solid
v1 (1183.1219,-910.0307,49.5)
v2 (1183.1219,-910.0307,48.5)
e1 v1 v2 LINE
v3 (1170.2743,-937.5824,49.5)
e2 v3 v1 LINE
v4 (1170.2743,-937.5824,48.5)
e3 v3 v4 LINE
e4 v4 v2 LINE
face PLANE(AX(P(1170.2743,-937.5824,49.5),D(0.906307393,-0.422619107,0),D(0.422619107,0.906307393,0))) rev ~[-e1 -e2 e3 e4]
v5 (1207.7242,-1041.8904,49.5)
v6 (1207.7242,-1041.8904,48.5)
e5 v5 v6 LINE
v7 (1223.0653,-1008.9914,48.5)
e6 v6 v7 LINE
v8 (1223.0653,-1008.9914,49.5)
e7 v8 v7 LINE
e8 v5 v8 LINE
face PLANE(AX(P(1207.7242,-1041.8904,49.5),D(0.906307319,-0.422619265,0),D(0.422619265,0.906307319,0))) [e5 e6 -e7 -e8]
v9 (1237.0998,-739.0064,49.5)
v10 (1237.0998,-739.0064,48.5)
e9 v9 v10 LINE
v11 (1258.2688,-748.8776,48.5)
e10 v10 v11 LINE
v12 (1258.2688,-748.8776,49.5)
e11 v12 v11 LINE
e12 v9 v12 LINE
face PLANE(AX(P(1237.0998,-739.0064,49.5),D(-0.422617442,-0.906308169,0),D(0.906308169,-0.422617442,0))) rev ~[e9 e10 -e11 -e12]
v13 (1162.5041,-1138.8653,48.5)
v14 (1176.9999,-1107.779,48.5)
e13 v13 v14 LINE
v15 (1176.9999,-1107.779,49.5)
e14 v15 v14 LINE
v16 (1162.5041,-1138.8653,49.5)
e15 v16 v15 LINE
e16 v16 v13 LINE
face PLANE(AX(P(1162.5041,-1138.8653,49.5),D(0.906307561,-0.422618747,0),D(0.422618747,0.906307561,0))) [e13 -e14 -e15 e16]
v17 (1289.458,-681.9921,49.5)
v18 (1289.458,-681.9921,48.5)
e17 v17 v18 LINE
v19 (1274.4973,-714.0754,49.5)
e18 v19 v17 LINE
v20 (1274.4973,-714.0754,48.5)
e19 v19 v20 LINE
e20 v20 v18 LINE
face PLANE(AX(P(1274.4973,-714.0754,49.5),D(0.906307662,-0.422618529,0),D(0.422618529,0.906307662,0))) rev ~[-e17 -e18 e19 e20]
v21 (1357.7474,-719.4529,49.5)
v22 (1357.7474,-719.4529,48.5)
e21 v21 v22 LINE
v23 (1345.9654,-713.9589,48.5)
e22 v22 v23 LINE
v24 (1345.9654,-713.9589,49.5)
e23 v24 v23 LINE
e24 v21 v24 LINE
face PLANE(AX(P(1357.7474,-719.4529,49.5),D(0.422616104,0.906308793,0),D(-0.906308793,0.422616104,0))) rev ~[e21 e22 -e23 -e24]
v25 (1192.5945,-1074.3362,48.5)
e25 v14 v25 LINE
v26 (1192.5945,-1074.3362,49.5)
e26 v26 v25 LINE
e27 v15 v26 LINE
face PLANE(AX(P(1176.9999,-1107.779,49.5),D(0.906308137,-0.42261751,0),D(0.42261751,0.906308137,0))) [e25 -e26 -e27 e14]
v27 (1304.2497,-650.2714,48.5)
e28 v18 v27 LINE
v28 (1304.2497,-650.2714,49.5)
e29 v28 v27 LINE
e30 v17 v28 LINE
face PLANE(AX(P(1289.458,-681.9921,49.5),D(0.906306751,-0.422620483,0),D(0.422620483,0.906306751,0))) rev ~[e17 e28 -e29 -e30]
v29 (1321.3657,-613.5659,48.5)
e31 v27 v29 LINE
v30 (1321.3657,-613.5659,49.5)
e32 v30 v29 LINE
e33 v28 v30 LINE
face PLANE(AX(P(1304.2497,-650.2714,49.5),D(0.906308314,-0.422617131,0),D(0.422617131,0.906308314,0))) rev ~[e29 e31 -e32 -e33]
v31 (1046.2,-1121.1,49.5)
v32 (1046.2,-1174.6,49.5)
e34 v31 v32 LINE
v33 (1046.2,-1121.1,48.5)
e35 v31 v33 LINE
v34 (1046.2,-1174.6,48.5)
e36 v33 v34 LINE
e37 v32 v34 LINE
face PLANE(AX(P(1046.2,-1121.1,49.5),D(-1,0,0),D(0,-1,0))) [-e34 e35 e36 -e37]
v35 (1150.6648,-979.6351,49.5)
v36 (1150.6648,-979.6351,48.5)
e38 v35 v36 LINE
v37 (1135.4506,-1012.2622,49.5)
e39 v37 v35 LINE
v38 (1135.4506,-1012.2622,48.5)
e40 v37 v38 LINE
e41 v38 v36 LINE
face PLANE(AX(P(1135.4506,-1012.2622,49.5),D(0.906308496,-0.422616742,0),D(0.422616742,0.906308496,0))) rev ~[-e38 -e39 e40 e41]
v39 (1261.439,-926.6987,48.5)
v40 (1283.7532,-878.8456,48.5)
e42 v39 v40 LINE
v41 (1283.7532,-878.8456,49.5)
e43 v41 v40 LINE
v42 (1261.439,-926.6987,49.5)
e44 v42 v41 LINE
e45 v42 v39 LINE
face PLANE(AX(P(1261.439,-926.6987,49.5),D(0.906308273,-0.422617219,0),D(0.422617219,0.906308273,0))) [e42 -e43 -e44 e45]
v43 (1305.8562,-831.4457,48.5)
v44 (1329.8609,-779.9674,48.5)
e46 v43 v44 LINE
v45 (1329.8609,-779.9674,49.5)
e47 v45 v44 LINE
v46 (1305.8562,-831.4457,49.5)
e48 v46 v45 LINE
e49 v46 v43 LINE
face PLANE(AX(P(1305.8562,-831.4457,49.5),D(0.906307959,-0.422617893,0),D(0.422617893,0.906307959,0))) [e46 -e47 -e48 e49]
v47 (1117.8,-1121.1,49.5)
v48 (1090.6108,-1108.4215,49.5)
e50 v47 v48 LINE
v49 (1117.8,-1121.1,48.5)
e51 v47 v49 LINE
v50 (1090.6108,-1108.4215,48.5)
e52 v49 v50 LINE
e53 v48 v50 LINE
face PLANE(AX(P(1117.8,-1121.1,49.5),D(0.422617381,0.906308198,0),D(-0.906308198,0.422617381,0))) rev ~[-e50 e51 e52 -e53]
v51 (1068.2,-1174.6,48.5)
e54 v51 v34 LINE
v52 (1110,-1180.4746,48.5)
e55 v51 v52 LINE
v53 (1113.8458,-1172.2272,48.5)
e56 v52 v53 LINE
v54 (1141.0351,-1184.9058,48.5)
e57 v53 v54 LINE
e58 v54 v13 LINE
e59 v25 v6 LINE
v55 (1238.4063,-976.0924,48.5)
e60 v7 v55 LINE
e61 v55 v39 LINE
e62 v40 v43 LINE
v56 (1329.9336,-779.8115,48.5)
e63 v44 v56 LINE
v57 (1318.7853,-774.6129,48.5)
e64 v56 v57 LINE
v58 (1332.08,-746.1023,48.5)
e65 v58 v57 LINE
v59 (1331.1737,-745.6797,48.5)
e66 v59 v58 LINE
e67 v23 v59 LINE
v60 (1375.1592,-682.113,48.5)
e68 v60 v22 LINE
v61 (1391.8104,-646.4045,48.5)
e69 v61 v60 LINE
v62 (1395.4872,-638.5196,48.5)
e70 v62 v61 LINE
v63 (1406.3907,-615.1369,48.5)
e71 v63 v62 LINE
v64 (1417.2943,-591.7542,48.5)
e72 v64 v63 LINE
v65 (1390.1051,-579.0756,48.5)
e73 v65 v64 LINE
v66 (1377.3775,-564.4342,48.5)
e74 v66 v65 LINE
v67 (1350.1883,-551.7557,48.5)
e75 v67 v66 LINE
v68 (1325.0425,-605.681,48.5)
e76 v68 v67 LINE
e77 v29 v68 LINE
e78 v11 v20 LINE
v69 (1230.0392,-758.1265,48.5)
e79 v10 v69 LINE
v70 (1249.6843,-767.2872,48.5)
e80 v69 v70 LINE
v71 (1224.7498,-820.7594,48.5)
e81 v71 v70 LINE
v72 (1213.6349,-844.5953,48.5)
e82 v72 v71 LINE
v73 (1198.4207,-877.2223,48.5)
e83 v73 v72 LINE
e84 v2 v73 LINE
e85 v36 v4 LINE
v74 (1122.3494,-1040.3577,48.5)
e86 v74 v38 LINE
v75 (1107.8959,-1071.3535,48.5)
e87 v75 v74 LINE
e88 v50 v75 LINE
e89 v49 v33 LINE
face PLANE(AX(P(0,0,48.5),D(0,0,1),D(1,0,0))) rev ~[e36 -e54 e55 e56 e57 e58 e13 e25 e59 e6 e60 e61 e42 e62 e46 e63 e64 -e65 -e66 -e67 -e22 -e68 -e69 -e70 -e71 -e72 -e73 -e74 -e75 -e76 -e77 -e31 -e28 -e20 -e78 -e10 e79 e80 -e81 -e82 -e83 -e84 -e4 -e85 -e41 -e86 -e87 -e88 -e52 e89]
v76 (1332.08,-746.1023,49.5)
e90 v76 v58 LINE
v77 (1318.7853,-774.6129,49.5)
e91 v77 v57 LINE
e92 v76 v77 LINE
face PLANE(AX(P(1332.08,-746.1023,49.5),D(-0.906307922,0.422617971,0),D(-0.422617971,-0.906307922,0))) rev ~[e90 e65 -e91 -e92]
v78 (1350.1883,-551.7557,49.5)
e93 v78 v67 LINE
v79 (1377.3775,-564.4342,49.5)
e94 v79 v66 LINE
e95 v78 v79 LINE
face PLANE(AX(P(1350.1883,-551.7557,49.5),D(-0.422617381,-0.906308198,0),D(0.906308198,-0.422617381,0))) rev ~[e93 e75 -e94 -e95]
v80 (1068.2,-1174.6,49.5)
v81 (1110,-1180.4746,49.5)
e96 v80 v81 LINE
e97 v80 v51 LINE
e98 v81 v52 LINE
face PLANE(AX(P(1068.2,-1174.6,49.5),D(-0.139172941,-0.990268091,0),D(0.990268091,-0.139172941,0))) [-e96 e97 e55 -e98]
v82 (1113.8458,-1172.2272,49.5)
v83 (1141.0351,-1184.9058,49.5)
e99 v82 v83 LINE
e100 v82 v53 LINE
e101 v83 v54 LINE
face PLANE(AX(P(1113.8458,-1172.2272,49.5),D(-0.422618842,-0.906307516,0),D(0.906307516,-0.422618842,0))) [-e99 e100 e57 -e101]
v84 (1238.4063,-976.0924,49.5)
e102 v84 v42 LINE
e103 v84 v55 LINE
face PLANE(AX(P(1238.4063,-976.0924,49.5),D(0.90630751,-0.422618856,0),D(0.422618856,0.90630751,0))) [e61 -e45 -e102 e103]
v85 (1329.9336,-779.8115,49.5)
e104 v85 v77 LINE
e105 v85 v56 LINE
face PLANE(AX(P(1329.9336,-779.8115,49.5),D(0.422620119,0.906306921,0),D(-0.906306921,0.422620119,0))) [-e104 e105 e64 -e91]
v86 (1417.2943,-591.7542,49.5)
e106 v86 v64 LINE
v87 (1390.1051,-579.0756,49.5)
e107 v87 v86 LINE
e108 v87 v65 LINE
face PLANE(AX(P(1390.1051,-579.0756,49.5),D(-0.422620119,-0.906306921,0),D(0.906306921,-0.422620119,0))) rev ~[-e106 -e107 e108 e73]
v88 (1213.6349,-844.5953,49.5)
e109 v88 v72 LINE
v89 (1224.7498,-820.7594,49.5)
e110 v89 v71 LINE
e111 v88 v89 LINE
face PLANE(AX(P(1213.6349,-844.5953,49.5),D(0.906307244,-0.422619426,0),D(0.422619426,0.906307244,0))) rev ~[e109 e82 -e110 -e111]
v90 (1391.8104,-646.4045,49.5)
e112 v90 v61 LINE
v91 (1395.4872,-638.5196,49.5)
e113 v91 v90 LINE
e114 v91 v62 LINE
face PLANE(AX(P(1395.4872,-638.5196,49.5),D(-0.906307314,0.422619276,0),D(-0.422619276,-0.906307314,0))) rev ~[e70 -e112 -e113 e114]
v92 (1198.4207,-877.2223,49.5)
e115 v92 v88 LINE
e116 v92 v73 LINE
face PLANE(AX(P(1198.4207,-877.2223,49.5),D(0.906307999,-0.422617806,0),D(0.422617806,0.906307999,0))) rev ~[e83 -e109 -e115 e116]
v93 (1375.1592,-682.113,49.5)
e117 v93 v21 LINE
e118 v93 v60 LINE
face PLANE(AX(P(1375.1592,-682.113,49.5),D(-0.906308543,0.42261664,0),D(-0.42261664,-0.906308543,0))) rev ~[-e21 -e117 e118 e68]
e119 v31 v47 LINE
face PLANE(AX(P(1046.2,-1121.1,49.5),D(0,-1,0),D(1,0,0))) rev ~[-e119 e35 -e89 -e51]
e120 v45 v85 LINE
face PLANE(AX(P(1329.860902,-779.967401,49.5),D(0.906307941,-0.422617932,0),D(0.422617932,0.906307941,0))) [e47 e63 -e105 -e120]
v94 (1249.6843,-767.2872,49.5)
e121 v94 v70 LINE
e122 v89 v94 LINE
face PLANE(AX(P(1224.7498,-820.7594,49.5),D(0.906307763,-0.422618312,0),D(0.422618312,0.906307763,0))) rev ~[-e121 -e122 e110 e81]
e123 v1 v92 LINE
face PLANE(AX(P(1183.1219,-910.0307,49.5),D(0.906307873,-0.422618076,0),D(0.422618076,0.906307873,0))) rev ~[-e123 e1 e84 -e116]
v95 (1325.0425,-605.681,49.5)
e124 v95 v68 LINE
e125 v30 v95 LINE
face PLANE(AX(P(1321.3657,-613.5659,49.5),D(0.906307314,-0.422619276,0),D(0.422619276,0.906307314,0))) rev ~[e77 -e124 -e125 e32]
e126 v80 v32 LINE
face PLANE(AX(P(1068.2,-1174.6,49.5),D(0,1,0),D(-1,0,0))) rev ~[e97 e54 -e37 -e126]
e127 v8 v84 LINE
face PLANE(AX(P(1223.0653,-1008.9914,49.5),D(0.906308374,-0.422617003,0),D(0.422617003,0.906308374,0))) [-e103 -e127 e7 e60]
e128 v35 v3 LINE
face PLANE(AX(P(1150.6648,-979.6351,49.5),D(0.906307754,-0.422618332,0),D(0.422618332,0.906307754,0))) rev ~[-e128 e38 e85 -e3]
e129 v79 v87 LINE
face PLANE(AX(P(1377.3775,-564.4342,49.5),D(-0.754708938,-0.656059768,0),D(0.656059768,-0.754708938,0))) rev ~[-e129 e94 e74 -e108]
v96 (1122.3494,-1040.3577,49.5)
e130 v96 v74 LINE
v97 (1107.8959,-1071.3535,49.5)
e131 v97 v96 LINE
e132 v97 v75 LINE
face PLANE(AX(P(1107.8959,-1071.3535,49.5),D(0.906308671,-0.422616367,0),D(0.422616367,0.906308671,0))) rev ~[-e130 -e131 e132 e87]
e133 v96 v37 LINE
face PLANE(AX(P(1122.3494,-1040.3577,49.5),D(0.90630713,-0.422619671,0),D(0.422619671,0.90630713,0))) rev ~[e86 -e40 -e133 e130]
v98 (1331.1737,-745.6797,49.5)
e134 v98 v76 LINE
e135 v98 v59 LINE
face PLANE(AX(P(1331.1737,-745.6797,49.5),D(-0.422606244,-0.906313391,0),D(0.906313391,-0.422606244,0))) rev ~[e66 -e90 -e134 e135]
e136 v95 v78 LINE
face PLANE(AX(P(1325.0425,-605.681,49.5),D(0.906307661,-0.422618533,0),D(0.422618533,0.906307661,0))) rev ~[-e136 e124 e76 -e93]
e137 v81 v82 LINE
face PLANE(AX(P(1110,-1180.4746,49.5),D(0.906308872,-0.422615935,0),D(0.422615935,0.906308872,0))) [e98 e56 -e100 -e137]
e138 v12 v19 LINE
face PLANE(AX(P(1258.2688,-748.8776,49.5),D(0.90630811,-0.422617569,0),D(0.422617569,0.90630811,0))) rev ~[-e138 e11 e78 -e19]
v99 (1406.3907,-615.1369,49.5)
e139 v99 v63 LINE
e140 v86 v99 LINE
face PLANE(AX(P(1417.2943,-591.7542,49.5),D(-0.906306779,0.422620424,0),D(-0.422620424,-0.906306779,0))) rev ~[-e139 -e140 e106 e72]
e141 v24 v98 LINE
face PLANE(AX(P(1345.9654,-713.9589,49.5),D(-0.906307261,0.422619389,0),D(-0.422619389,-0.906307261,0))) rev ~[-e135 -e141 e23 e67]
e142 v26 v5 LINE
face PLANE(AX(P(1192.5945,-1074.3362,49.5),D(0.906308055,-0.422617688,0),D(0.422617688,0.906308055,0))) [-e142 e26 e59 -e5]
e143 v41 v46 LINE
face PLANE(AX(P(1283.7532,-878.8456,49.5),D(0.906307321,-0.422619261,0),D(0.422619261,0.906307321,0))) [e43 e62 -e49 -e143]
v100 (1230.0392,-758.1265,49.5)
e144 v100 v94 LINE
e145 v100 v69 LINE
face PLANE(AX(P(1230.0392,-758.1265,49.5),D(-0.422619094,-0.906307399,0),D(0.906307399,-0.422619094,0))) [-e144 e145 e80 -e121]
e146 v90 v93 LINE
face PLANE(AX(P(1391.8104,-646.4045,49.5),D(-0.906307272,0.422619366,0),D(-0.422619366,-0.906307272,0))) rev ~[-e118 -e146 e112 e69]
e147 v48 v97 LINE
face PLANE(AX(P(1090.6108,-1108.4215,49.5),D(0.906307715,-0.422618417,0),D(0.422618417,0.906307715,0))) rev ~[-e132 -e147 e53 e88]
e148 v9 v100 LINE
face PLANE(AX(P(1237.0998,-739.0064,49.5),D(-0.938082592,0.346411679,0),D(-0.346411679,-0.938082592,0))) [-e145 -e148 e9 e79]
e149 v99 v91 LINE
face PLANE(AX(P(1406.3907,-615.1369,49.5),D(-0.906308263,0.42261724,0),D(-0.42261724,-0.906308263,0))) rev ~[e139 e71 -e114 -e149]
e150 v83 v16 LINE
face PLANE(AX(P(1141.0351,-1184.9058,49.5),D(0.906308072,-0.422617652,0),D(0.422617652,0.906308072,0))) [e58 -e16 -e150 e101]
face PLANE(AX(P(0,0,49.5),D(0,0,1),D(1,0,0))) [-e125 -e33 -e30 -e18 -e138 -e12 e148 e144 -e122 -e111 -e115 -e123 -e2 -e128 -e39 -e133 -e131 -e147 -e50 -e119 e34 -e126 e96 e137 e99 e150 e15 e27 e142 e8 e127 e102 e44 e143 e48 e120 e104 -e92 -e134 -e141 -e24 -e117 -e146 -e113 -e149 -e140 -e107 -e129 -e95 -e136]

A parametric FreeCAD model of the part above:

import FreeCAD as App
import Part
import Sketcher

V = App.Vector
Q = App.Units.Quantity

doc = App.newDocument("Part")
body = doc.addObject("PartDesign::Body", "Body")

sketch1 = doc.addObject("Sketcher::SketchObject", "Sketch")
body.addObject(sketch1)
sketch1.AttachmentSupport = (doc.XY_Plane, [""])
sketch1.MapMode = "FlatFace"
sketch1.AttachmentOffset = App.Placement(V(0, 0, 49.5), App.Rotation())
sketch1.addGeometry(Part.LineSegment(V(1046.2, -1121.1, 0), V(1046.2, -1174.6, 0)), False)
sketch1.addGeometry(Part.LineSegment(V(1046.2, -1174.6, 0), V(1068.2, -1174.6, 0)), False)
sketch1.addGeometry(Part.LineSegment(V(1068.2, -1174.6, 0), V(1110, -1180.4746, 0)), False)
sketch1.addGeometry(Part.LineSegment(V(1110, -1180.4746, 0), V(1113.8458, -1172.2272, 0)), False)
sketch1.addGeometry(Part.LineSegment(V(1113.8458, -1172.2272, 0), V(1141.0351, -1184.9058, 0)), False)
sketch1.addGeometry(Part.LineSegment(V(1141.0351, -1184.9058, 0), V(1162.5041, -1138.8653, 0)), False)
sketch1.addGeometry(Part.LineSegment(V(1162.5041, -1138.8653, 0), V(1176.9999, -1107.779, 0)), False)
sketch1.addGeometry(Part.LineSegment(V(1176.9999, -1107.779, 0), V(1192.5945, -1074.3362, 0)), False)
sketch1.addGeometry(Part.LineSegment(V(1192.5945, -1074.3362, 0), V(1207.7242, -1041.8904, 0)), False)
sketch1.addGeometry(Part.LineSegment(V(1207.7242, -1041.8904, 0), V(1223.0653, -1008.9914, 0)), False)
sketch1.addGeometry(Part.LineSegment(V(1223.0653, -1008.9914, 0), V(1238.4063, -976.0924, 0)), False)
sketch1.addGeometry(Part.LineSegment(V(1238.4063, -976.0924, 0), V(1261.439, -926.6987, 0)), False)
sketch1.addGeometry(Part.LineSegment(V(1261.439, -926.6987, 0), V(1283.7532, -878.8456, 0)), False)
sketch1.addGeometry(Part.LineSegment(V(1283.7532, -878.8456, 0), V(1305.8562, -831.4457, 0)), False)
sketch1.addGeometry(Part.LineSegment(V(1305.8562, -831.4457, 0), V(1329.8609, -779.9674, 0)), False)
sketch1.addGeometry(Part.LineSegment(V(1329.860902, -779.967401, 0), V(1329.9336, -779.8115, 0)), False)
sketch1.addGeometry(Part.LineSegment(V(1329.9336, -779.8115, 0), V(1318.785287, -774.612928, 0)), False)
sketch1.addGeometry(Part.LineSegment(V(1318.7853, -774.6129, 0), V(1332.08, -746.1023, 0)), False)
sketch1.addGeometry(Part.LineSegment(V(1332.08, -746.1023, 0), V(1331.1737, -745.6797, 0)), False)
sketch1.addGeometry(Part.LineSegment(V(1331.1737, -745.6797, 0), V(1345.9654, -713.9589, 0)), False)
sketch1.addGeometry(Part.LineSegment(V(1345.965401, -713.958898, 0), V(1357.7474, -719.4529, 0)), False)
sketch1.addGeometry(Part.LineSegment(V(1357.7474, -719.4529, 0), V(1375.1592, -682.113, 0)), False)
sketch1.addGeometry(Part.LineSegment(V(1375.1592, -682.113, 0), V(1391.8104, -646.4045, 0)), False)
sketch1.addGeometry(Part.LineSegment(V(1391.8104, -646.4045, 0), V(1395.4872, -638.5196, 0)), False)
sketch1.addGeometry(Part.LineSegment(V(1395.4872, -638.5196, 0), V(1406.3907, -615.1369, 0)), False)
sketch1.addGeometry(Part.LineSegment(V(1406.3907, -615.1369, 0), V(1417.2943, -591.7542, 0)), False)
sketch1.addGeometry(Part.LineSegment(V(1417.2943, -591.7542, 0), V(1390.1051, -579.0756, 0)), False)
sketch1.addGeometry(Part.LineSegment(V(1390.1051, -579.0756, 0), V(1377.3775, -564.4342, 0)), False)
sketch1.addGeometry(Part.LineSegment(V(1377.3775, -564.4342, 0), V(1350.1883, -551.7557, 0)), False)
sketch1.addGeometry(Part.LineSegment(V(1350.1883, -551.7557, 0), V(1325.0425, -605.681, 0)), False)
sketch1.addGeometry(Part.LineSegment(V(1325.0425, -605.681, 0), V(1321.3657, -613.5659, 0)), False)
sketch1.addGeometry(Part.LineSegment(V(1321.3657, -613.5659, 0), V(1304.2497, -650.2714, 0)), False)
sketch1.addGeometry(Part.LineSegment(V(1304.2497, -650.2714, 0), V(1289.458, -681.9921, 0)), False)
sketch1.addGeometry(Part.LineSegment(V(1289.458, -681.9921, 0), V(1274.4973, -714.0754, 0)), False)
sketch1.addGeometry(Part.LineSegment(V(1274.4973, -714.0754, 0), V(1258.2688, -748.8776, 0)), False)
sketch1.addGeometry(Part.LineSegment(V(1258.268783, -748.877636, 0), V(1237.0998, -739.0064, 0)), False)
sketch1.addGeometry(Part.LineSegment(V(1237.0998, -739.0064, 0), V(1239.7468, -733.8456, 0)), False)
sketch1.addGeometry(Part.LineSegment(V(1239.7468, -733.8456, 0), V(1226.4, -727, 0)), False)
sketch1.addGeometry(Part.LineSegment(V(1226.4, -727, 0), V(1213.4, -757.7, 0)), False)
sketch1.addGeometry(Part.LineSegment(V(1213.4, -757.7, 0), V(1226.7468, -764.5456, 0)), False)
sketch1.addGeometry(Part.LineSegment(V(1226.7468, -764.5456, 0), V(1230.0392, -758.1265, 0)), False)
sketch1.addGeometry(Part.LineSegment(V(1230.0392, -758.1265, 0), V(1249.684307, -767.287186, 0)), False)
sketch1.addGeometry(Part.LineSegment(V(1249.6843, -767.2872, 0), V(1224.7498, -820.7594, 0)), False)
sketch1.addGeometry(Part.LineSegment(V(1224.7498, -820.7594, 0), V(1213.6349, -844.5953, 0)), False)
sketch1.addGeometry(Part.LineSegment(V(1213.6349, -844.5953, 0), V(1198.4207, -877.2223, 0)), False)
sketch1.addGeometry(Part.LineSegment(V(1198.4207, -877.2223, 0), V(1183.1219, -910.0307, 0)), False)
sketch1.addGeometry(Part.LineSegment(V(1183.1219, -910.0307, 0), V(1170.2743, -937.5824, 0)), False)
sketch1.addGeometry(Part.LineSegment(V(1170.2743, -937.5824, 0), V(1150.6648, -979.6351, 0)), False)
sketch1.addGeometry(Part.LineSegment(V(1150.6648, -979.6351, 0), V(1135.4506, -1012.2622, 0)), False)
sketch1.addGeometry(Part.LineSegment(V(1135.4506, -1012.2622, 0), V(1122.3494, -1040.3577, 0)), False)
sketch1.addGeometry(Part.LineSegment(V(1122.3494, -1040.3577, 0), V(1107.8959, -1071.3535, 0)), False)
sketch1.addGeometry(Part.LineSegment(V(1107.8959, -1071.3535, 0), V(1090.6108, -1108.4215, 0)), False)
sketch1.addGeometry(Part.LineSegment(V(1090.6108, -1108.4215, 0), V(1117.8, -1121.1, 0)), False)
sketch1.addGeometry(Part.LineSegment(V(1117.8, -1121.1, 0), V(1046.2, -1121.1, 0)), False)
sketch1.addConstraint(Sketcher.Constraint("Coincident", 0, 2, 1, 1))
sketch1.addConstraint(Sketcher.Constraint("Coincident", 1, 2, 2, 1))
sketch1.addConstraint(Sketcher.Constraint("Coincident", 2, 2, 3, 1))
sketch1.addConstraint(Sketcher.Constraint("Coincident", 3, 2, 4, 1))
sketch1.addConstraint(Sketcher.Constraint("Coincident", 4, 2, 5, 1))
sketch1.addConstraint(Sketcher.Constraint("Coincident", 5, 2, 6, 1))
sketch1.addConstraint(Sketcher.Constraint("Coincident", 6, 2, 7, 1))
sketch1.addConstraint(Sketcher.Constraint("Coincident", 7, 2, 8, 1))
sketch1.addConstraint(Sketcher.Constraint("Coincident", 8, 2, 9, 1))
sketch1.addConstraint(Sketcher.Constraint("Coincident", 9, 2, 10, 1))
sketch1.addConstraint(Sketcher.Constraint("Coincident", 10, 2, 11, 1))
sketch1.addConstraint(Sketcher.Constraint("Coincident", 11, 2, 12, 1))
sketch1.addConstraint(Sketcher.Constraint("Coincident", 12, 2, 13, 1))
sketch1.addConstraint(Sketcher.Constraint("Coincident", 13, 2, 14, 1))
sketch1.addConstraint(Sketcher.Constraint("Coincident", 14, 2, 15, 1))
sketch1.addConstraint(Sketcher.Constraint("Coincident", 15, 2, 16, 1))
sketch1.addConstraint(Sketcher.Constraint("Coincident", 16, 2, 17, 1))
sketch1.addConstraint(Sketcher.Constraint("Coincident", 17, 2, 18, 1))
sketch1.addConstraint(Sketcher.Constraint("Coincident", 18, 2, 19, 1))
sketch1.addConstraint(Sketcher.Constraint("Coincident", 19, 2, 20, 1))
sketch1.addConstraint(Sketcher.Constraint("Coincident", 20, 2, 21, 1))
sketch1.addConstraint(Sketcher.Constraint("Coincident", 21, 2, 22, 1))
sketch1.addConstraint(Sketcher.Constraint("Coincident", 22, 2, 23, 1))
sketch1.addConstraint(Sketcher.Constraint("Coincident", 23, 2, 24, 1))
sketch1.addConstraint(Sketcher.Constraint("Coincident", 24, 2, 25, 1))
sketch1.addConstraint(Sketcher.Constraint("Coincident", 25, 2, 26, 1))
sketch1.addConstraint(Sketcher.Constraint("Coincident", 26, 2, 27, 1))
sketch1.addConstraint(Sketcher.Constraint("Coincident", 27, 2, 28, 1))
sketch1.addConstraint(Sketcher.Constraint("Coincident", 28, 2, 29, 1))
sketch1.addConstraint(Sketcher.Constraint("Coincident", 29, 2, 30, 1))
sketch1.addConstraint(Sketcher.Constraint("Coincident", 30, 2, 31, 1))
sketch1.addConstraint(Sketcher.Constraint("Coincident", 31, 2, 32, 1))
sketch1.addConstraint(Sketcher.Constraint("Coincident", 32, 2, 33, 1))
sketch1.addConstraint(Sketcher.Constraint("Coincident", 33, 2, 34, 1))
sketch1.addConstraint(Sketcher.Constraint("Coincident", 34, 2, 35, 1))
sketch1.addConstraint(Sketcher.Constraint("Coincident", 35, 2, 36, 1))
sketch1.addConstraint(Sketcher.Constraint("Coincident", 36, 2, 37, 1))
sketch1.addConstraint(Sketcher.Constraint("Coincident", 37, 2, 38, 1))
sketch1.addConstraint(Sketcher.Constraint("Coincident", 38, 2, 39, 1))
sketch1.addConstraint(Sketcher.Constraint("Coincident", 39, 2, 40, 1))
sketch1.addConstraint(Sketcher.Constraint("Coincident", 40, 2, 41, 1))
sketch1.addConstraint(Sketcher.Constraint("Coincident", 41, 2, 42, 1))
sketch1.addConstraint(Sketcher.Constraint("Coincident", 42, 2, 43, 1))
sketch1.addConstraint(Sketcher.Constraint("Coincident", 43, 2, 44, 1))
sketch1.addConstraint(Sketcher.Constraint("Coincident", 44, 2, 45, 1))
sketch1.addConstraint(Sketcher.Constraint("Coincident", 45, 2, 46, 1))
sketch1.addConstraint(Sketcher.Constraint("Coincident", 46, 2, 47, 1))
sketch1.addConstraint(Sketcher.Constraint("Coincident", 47, 2, 48, 1))
sketch1.addConstraint(Sketcher.Constraint("Coincident", 48, 2, 49, 1))
sketch1.addConstraint(Sketcher.Constraint("Coincident", 49, 2, 50, 1))
sketch1.addConstraint(Sketcher.Constraint("Coincident", 50, 2, 51, 1))
sketch1.addConstraint(Sketcher.Constraint("Coincident", 51, 2, 52, 1))
sketch1.addConstraint(Sketcher.Constraint("Coincident", 52, 2, 53, 1))
sketch1.addConstraint(Sketcher.Constraint("Coincident", 53, 2, 0, 1))
sketch1.addConstraint(Sketcher.Constraint("Vertical", 0))
sketch1.addConstraint(Sketcher.Constraint("Horizontal", 1))
sketch1.addConstraint(Sketcher.Constraint("Horizontal", 53))
sketch1.addConstraint(Sketcher.Constraint("Perpendicular", 3, 4))
sketch1.addConstraint(Sketcher.Constraint("Perpendicular", 4, 5))
sketch1.addConstraint(Sketcher.Constraint("Parallel", 5, 6))
sketch1.addConstraint(Sketcher.Constraint("Parallel", 6, 7))
sketch1.addConstraint(Sketcher.Constraint("Parallel", 7, 8))
sketch1.addConstraint(Sketcher.Constraint("Parallel", 8, 9))
sketch1.addConstraint(Sketcher.Constraint("Parallel", 9, 10))
sketch1.addConstraint(Sketcher.Constraint("Parallel", 10, 11))
sketch1.addConstraint(Sketcher.Constraint("Parallel", 11, 12))
sketch1.addConstraint(Sketcher.Constraint("Parallel", 12, 13))
sketch1.addConstraint(Sketcher.Constraint("Parallel", 13, 14))
sketch1.addConstraint(Sketcher.Constraint("Parallel", 14, 15))
sketch1.addConstraint(Sketcher.Constraint("Perpendicular", 15, 16))
sketch1.addConstraint(Sketcher.Constraint("Perpendicular", 16, 17))
sketch1.addConstraint(Sketcher.Constraint("Perpendicular", 17, 18))
sketch1.addConstraint(Sketcher.Constraint("Perpendicular", 18, 19))
sketch1.addConstraint(Sketcher.Constraint("Perpendicular", 19, 20))
sketch1.addConstraint(Sketcher.Constraint("Perpendicular", 20, 21))
sketch1.addConstraint(Sketcher.Constraint("Parallel", 21, 22))
sketch1.addConstraint(Sketcher.Constraint("Parallel", 22, 23))
sketch1.addConstraint(Sketcher.Constraint("Parallel", 23, 24))
sketch1.addConstraint(Sketcher.Constraint("Parallel", 24, 25))
sketch1.addConstraint(Sketcher.Constraint("Perpendicular", 25, 26))
sketch1.addConstraint(Sketcher.Constraint("Parallel", 26, 28))
sketch1.addConstraint(Sketcher.Constraint("Perpendicular", 28, 29))
sketch1.addConstraint(Sketcher.Constraint("Parallel", 29, 30))
sketch1.addConstraint(Sketcher.Constraint("Parallel", 30, 31))
sketch1.addConstraint(Sketcher.Constraint("Parallel", 31, 32))
sketch1.addConstraint(Sketcher.Constraint("Parallel", 32, 33))
sketch1.addConstraint(Sketcher.Constraint("Parallel", 33, 34))
sketch1.addConstraint(Sketcher.Constraint("Perpendicular", 34, 35))
sketch1.addConstraint(Sketcher.Constraint("Perpendicular", 36, 37))
sketch1.addConstraint(Sketcher.Constraint("Parallel", 37, 39))
sketch1.addConstraint(Sketcher.Constraint("Perpendicular", 39, 40))
sketch1.addConstraint(Sketcher.Constraint("Parallel", 35, 41))
sketch1.addConstraint(Sketcher.Constraint("Perpendicular", 41, 42))
sketch1.addConstraint(Sketcher.Constraint("Parallel", 42, 43))
sketch1.addConstraint(Sketcher.Constraint("Parallel", 43, 44))
sketch1.addConstraint(Sketcher.Constraint("Parallel", 44, 45))
sketch1.addConstraint(Sketcher.Constraint("Parallel", 45, 46))
sketch1.addConstraint(Sketcher.Constraint("Parallel", 46, 47))
sketch1.addConstraint(Sketcher.Constraint("Parallel", 47, 48))
sketch1.addConstraint(Sketcher.Constraint("Parallel", 48, 49))
sketch1.addConstraint(Sketcher.Constraint("Parallel", 49, 50))
sketch1.addConstraint(Sketcher.Constraint("Parallel", 50, 51))
sketch1.addConstraint(Sketcher.Constraint("Perpendicular", 51, 52))
sketch1.addConstraint(Sketcher.Constraint("Equal", 9, 10))
sketch1.addConstraint(Sketcher.Constraint("Equal", 24, 25))
sketch1.addConstraint(Sketcher.Constraint("Equal", 4, 26))
sketch1.addConstraint(Sketcher.Constraint("Equal", 26, 28))
sketch1.addConstraint(Sketcher.Constraint("Equal", 23, 30))
sketch1.addConstraint(Sketcher.Constraint("Equal", 19, 32))
sketch1.addConstraint(Sketcher.Constraint("Equal", 37, 39))
sketch1.addConstraint(Sketcher.Constraint("Equal", 44, 48))
sketch1.addConstraint(Sketcher.Constraint("Equal", 28, 52))
sketch1.addConstraint(Sketcher.Constraint("DistanceX", 1, 1, 1, 2, Q("22 mm")))
sketch1.addConstraint(Sketcher.Constraint("Angle", 4, Q("-25 deg")))
sketch1.addConstraint(Sketcher.Constraint("Distance", 4, Q("30 mm")))
sketch1.addConstraint(Sketcher.Constraint("Distance", 18, Q("1 mm")))
sketch1.addConstraint(Sketcher.Constraint("Distance", 19, Q("35 mm")))
sketch1.addConstraint(Sketcher.Constraint("Distance", 37, Q("15 mm")))
sketch1.addConstraint(Sketcher.Constraint("Distance", 42, Q("59 mm")))
sketch1.addConstraint(Sketcher.Constraint("Distance", 44, Q("36 mm")))
sketch1.addConstraint(Sketcher.Constraint("Distance", 49, Q("31 mm")))
sketch1.addConstraint(Sketcher.Constraint("Distance", 3, Q("9.1 mm")))
sketch1.addConstraint(Sketcher.Constraint("Distance", 5, Q("50.8 mm")))
sketch1.addConstraint(Sketcher.Constraint("Distance", 6, Q("34.3 mm")))
sketch1.addConstraint(Sketcher.Constraint("Distance", 7, Q("36.9 mm")))
sketch1.addConstraint(Sketcher.Constraint("Distance", 8, Q("35.8 mm")))
sketch1.addConstraint(Sketcher.Constraint("Distance", 9, Q("36.3 mm")))
sketch1.addConstraint(Sketcher.Constraint("Distance", 11, Q("54.5 mm")))
sketch1.addConstraint(Sketcher.Constraint("Distance", 12, Q("52.8 mm")))
sketch1.addConstraint(Sketcher.Constraint("Distance", 13, Q("52.3 mm")))
sketch1.addConstraint(Sketcher.Constraint("Distance", 14, Q("56.8 mm")))
sketch1.addConstraint(Sketcher.Constraint("Distance", 21, Q("41.2 mm")))
sketch1.addConstraint(Sketcher.Constraint("Distance", 22, Q("39.4 mm")))
sketch1.addConstraint(Sketcher.Constraint("Distance", 23, Q("8.7 mm")))
sketch1.addConstraint(Sketcher.Constraint("Distance", 24, Q("25.8 mm")))
sketch1.addConstraint(Sketcher.Constraint("Distance", 27, Q("19.4 mm")))
sketch1.addConstraint(Sketcher.Constraint("Distance", 29, Q("59.5 mm")))
sketch1.addConstraint(Sketcher.Constraint("Distance", 31, Q("40.5 mm")))
sketch1.addConstraint(Sketcher.Constraint("Distance", 33, Q("35.4 mm")))
sketch1.addConstraint(Sketcher.Constraint("Distance", 34, Q("38.4 mm")))
sketch1.addConstraint(Sketcher.Constraint("Distance", 36, Q("5.8 mm")))
sketch1.addConstraint(Sketcher.Constraint("Distance", 43, Q("26.3 mm")))
sketch1.addConstraint(Sketcher.Constraint("Distance", 45, Q("36.2 mm")))
sketch1.addConstraint(Sketcher.Constraint("Distance", 46, Q("30.4 mm")))
sketch1.addConstraint(Sketcher.Constraint("Distance", 47, Q("46.4 mm")))
sketch1.addConstraint(Sketcher.Constraint("Distance", 50, Q("34.2 mm")))
sketch1.addConstraint(Sketcher.Constraint("Distance", 51, Q("40.9 mm")))
sketch1.addConstraint(Sketcher.Constraint("DistanceX", 1, 2, 2, 2, Q("41.8 mm")))
sketch1.addConstraint(Sketcher.Constraint("Angle", 2, Q("-8 deg")))
sketch1.addConstraint(Sketcher.Constraint("Angle", 27, Q("131 deg")))
sketch1.addConstraint(Sketcher.Constraint("Distance", 20, Q("13 mm")))
sketch1.addConstraint(Sketcher.Constraint("DistanceX", 53, 2, 53, 1, Q("71.6 mm")))
sketch1.addConstraint(Sketcher.Constraint("DistanceY", 0, 2, 0, 1, Q("53.5 mm")))
sketch1.addConstraint(Sketcher.Constraint("DistanceX", -1, 1, 2, 2, Q("1110 mm")))
sketch1.addConstraint(Sketcher.Constraint("DistanceY", 37, 2, -1, 1, Q("727 mm")))
sketch1.addConstraint(Sketcher.Constraint("DistanceX", 38, 2, 37, 2, Q("13 mm")))
sketch1.addConstraint(Sketcher.Constraint("DistanceY", 0, 2, -1, 1, Q("1174.6 mm")))
sketch1.addConstraint(Sketcher.Constraint("DistanceX", -1, 1, 37, 2, Q("1226.4 mm")))
sketch1.addConstraint(Sketcher.Constraint("DistanceY", 38, 2, -1, 1, Q("757.7 mm")))
sketch1.addConstraint(Sketcher.Constraint("DistanceX", -1, 1, 17, 2, Q("1332.08 mm")))
sketch1.addConstraint(Sketcher.Constraint("DistanceX", 15, 2, 18, 2, Q("1.24 mm")))
sketch1.addConstraint(Sketcher.Constraint("DistanceX", 16, 2, 19, 2, Q("27.18 mm")))
pad1 = doc.addObject("PartDesign::Pad", "Pad")
body.addObject(pad1)
pad1.Profile = sketch1
pad1.Length = 1
pad1.Reversed = True

sketch2 = doc.addObject("Sketcher::SketchObject", "Sketch001")
body.addObject(sketch2)
sketch2.AttachmentSupport = (doc.XY_Plane, [""])
sketch2.MapMode = "FlatFace"
sketch2.AttachmentOffset = App.Placement(V(0, 0, 49.5), App.Rotation())
sketch2.addGeometry(Part.LineSegment(V(1237.0998, -739.0064, 0), V(1239.7468, -733.8456, 0)), False)
sketch2.addGeometry(Part.LineSegment(V(1239.7468, -733.8456, 0), V(1226.4, -727, 0)), False)
sketch2.addGeometry(Part.LineSegment(V(1226.4, -727, 0), V(1213.4, -757.7, 0)), False)
sketch2.addGeometry(Part.LineSegment(V(1213.4, -757.7, 0), V(1226.7468, -764.5456, 0)), False)
sketch2.addGeometry(Part.LineSegment(V(1226.7468, -764.5456, 0), V(1230.0392, -758.1265, 0)), False)
sketch2.addGeometry(Part.LineSegment(V(1230.0392, -758.1265, 0), V(1237.0998, -739.0064, 0)), False)
sketch2.addConstraint(Sketcher.Constraint("Coincident", 0, 2, 1, 1))
sketch2.addConstraint(Sketcher.Constraint("Coincident", 1, 2, 2, 1))
sketch2.addConstraint(Sketcher.Constraint("Coincident", 2, 2, 3, 1))
sketch2.addConstraint(Sketcher.Constraint("Coincident", 3, 2, 4, 1))
sketch2.addConstraint(Sketcher.Constraint("Coincident", 4, 2, 5, 1))
sketch2.addConstraint(Sketcher.Constraint("Coincident", 5, 2, 0, 1))
sketch2.addConstraint(Sketcher.Constraint("Perpendicular", 0, 1))
sketch2.addConstraint(Sketcher.Constraint("Parallel", 1, 3))
sketch2.addConstraint(Sketcher.Constraint("Perpendicular", 3, 4))
sketch2.addConstraint(Sketcher.Constraint("Equal", 1, 3))
sketch2.addConstraint(Sketcher.Constraint("Distance", 1, Q("15 mm")))
sketch2.addConstraint(Sketcher.Constraint("DistanceY", 1, 2, -1, 1, Q("727 mm")))
sketch2.addConstraint(Sketcher.Constraint("DistanceX", 2, 2, 1, 2, Q("13 mm")))
sketch2.addConstraint(Sketcher.Constraint("Distance", 0, Q("5.8 mm")))
sketch2.addConstraint(Sketcher.Constraint("DistanceX", -1, 1, 1, 2, Q("1226.4 mm")))
sketch2.addConstraint(Sketcher.Constraint("DistanceY", 2, 2, -1, 1, Q("757.7 mm")))
sketch2.addConstraint(Sketcher.Constraint("DistanceY", 4, 2, 5, 2, Q("19.12 mm")))
sketch2.addConstraint(Sketcher.Constraint("Distance", 5, Q("20.382 mm")))
pocket1 = doc.addObject("PartDesign::Pocket", "Pocket")
body.addObject(pocket1)
pocket1.Profile = sketch2
pocket1.Length = 2

doc.recompute()
